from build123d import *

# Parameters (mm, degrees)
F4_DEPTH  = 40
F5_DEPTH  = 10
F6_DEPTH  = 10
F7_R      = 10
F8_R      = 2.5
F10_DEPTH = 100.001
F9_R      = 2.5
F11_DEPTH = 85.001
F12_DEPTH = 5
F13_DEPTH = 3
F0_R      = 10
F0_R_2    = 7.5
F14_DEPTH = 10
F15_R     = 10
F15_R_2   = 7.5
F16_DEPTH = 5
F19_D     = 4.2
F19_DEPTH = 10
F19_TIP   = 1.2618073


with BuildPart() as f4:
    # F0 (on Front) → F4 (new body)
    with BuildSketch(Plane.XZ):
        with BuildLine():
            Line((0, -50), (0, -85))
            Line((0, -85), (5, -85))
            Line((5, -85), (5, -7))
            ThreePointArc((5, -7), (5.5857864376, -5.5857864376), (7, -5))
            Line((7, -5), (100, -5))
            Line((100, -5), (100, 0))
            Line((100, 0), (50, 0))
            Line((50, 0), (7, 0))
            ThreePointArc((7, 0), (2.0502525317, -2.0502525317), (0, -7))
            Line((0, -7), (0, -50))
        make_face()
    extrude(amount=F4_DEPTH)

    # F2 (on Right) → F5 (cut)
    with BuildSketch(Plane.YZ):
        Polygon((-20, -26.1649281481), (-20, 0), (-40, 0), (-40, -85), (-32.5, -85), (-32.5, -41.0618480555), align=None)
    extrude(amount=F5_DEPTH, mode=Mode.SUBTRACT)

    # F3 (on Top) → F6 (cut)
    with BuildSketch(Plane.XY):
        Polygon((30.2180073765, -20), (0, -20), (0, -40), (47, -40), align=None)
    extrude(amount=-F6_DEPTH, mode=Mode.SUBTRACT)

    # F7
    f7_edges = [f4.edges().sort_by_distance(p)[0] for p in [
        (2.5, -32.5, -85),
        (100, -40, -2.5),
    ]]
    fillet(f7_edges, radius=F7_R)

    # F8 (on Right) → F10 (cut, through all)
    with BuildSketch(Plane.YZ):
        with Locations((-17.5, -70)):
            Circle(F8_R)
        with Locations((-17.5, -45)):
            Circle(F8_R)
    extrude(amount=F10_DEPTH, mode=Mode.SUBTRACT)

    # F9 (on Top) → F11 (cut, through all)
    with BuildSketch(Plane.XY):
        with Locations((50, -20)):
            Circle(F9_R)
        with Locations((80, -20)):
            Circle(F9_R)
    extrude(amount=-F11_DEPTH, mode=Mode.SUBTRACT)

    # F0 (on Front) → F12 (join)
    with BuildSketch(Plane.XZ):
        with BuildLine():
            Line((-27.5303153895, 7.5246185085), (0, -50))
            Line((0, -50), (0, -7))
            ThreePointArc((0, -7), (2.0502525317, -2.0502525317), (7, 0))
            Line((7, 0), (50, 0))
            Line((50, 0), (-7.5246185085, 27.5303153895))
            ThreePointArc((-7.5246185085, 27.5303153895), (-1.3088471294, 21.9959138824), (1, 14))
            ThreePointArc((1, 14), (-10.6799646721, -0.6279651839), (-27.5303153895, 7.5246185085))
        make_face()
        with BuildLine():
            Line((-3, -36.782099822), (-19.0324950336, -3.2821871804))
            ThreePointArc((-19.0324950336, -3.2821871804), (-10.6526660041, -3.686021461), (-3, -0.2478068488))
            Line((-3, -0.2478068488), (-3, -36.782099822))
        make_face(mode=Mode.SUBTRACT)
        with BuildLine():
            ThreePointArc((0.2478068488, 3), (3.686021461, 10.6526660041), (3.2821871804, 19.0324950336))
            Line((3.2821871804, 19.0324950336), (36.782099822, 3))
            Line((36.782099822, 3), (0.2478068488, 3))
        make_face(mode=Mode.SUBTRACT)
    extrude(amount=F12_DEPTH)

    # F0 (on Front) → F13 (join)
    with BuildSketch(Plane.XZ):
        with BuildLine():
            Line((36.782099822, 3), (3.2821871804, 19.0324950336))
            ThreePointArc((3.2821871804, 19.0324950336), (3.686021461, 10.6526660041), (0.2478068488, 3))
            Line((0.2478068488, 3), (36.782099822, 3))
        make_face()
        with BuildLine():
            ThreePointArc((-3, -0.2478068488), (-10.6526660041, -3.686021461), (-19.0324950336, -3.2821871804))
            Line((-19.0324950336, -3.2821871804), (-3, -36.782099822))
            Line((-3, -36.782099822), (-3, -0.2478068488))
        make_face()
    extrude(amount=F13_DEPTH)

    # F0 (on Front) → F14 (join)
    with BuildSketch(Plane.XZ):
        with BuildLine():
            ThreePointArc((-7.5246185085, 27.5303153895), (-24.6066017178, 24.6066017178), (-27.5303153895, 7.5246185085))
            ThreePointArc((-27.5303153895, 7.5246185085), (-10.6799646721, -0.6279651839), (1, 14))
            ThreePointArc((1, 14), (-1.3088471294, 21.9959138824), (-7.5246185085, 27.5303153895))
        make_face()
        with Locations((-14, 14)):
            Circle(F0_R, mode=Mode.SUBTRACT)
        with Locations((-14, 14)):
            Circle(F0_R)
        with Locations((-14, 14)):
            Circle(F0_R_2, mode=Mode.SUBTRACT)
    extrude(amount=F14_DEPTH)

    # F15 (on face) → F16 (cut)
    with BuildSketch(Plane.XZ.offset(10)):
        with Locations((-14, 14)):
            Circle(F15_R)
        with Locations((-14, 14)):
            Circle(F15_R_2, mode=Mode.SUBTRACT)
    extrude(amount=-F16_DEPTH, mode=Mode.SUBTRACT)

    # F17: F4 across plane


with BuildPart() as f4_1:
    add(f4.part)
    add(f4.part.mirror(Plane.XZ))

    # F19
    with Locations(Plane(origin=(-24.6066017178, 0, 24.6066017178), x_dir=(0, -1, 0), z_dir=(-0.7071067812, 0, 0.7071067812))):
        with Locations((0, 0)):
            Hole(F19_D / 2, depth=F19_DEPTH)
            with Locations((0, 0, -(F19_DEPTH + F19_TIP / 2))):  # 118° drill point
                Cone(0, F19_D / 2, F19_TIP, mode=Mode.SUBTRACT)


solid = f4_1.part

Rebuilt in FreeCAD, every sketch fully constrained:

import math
import FreeCAD as App
import Part
import Sketcher
from FreeCAD import Vector
Q = App.Units.Quantity


def edges_at(feature, points):
    """Names of the edges that pass closest to the given points."""
    edges = feature.Shape.Edges
    near = lambda p: min(range(len(edges)), key=lambda i: edges[i].distToShape(Part.Vertex(*p))[0])
    return sorted({f"Edge{near(p) + 1}" for p in points})


def add_polygon(sketch, points):
    """Adds a closed chain of lines whose ends are joined by coincident constraints."""
    first, n = sketch.GeometryCount, len(points)
    for a, b in zip(points, points[1:] + points[:1]):
        sketch.addGeometry(Part.LineSegment(App.Vector(*a, 0), App.Vector(*b, 0)), False)
    for i in range(n):
        sketch.addConstraint(Sketcher.Constraint("Coincident", first + i, 2, first + (i + 1) % n, 1))

doc = App.newDocument("Part")
params = doc.addObject("Spreadsheet::Sheet", "Params")
for row, (alias, value) in enumerate([
    ("sketch1_radius", "2 mm"),
    ("sketch1_radius2", "7 mm"),
    ("sketch1_width", "93 mm"),
    ("sketch1_height", "78 mm"),
    ("pad1_length", "40 mm"),
    ("sketch2_width", "20 mm"),
    ("sketch2_height", "85 mm"),
    ("sketch2_width2", "7.5 mm"),
    ("pocket1_length", "10 mm"),
    ("sketch3_width", "47 mm"),
    ("sketch3_height", "20 mm"),
    ("pocket2_length", "10 mm"),
    ("fillet_radius", "10 mm"),
    ("sketch4_diameter", "5 mm"),
    ("sketch5_diameter", "5 mm"),
    ("sketch6_radius", "7 mm"),
    ("sketch6_radius2", "15 mm"),
    ("sketch6_radius3", "18 mm"),
    ("sketch6_width", "43 mm"),
    ("pad2_length", "5 mm"),
    ("sketch7_radius", "18 mm"),
    ("pad3_length", "3 mm"),
    ("sketch8_diameter", "30 mm"),
    ("sketch8_diameter2", "15 mm"),
    ("pad4_length", "10 mm"),
    ("sketch9_diameter", "20 mm"),
    ("sketch9_diameter2", "15 mm"),
    ("pocket5_length", "5 mm"),
    ("sketch10_diameter", "4.2 mm"),
    ("hole_diameter", "4.2 mm"),
    ("hole_depth", "10 mm"),
], start=1):
    params.set(f"A{row}", alias)
    params.set(f"B{row}", "=" + value)
    params.setAlias(f"B{row}", alias)

body = doc.addObject("PartDesign::Body", "Body")

sketch1 = body.newObject("Sketcher::SketchObject", "Sketch")
sketch1.AttachmentSupport = (doc.getObject("XZ_Plane"), [""])
sketch1.MapMode = "FlatFace"
sketch1.addGeometry(Part.LineSegment(Vector(0, -85, 0), Vector(5, -85, 0)), False)
sketch1.addGeometry(Part.LineSegment(Vector(5, -85, 0), Vector(5, -7, 0)), False)
sketch1.addGeometry(Part.ArcOfCircle(Part.Circle(Vector(7, -7, 0), Vector(0, 0, 1), 2), math.radians(90), math.radians(180)), False)
sketch1.addGeometry(Part.LineSegment(Vector(7, -5, 0), Vector(100, -5, 0)), False)
sketch1.addGeometry(Part.LineSegment(Vector(100, -5, 0), Vector(100, 0, 0)), False)
sketch1.addGeometry(Part.LineSegment(Vector(100, 0, 0), Vector(7, 0, 0)), False)
sketch1.addGeometry(Part.ArcOfCircle(Part.Circle(Vector(7, -7, 0), Vector(0, 0, 1), 7), math.radians(90), math.radians(180)), False)
sketch1.addGeometry(Part.LineSegment(Vector(0, -7, 0), Vector(0, -85, 0)), False)
sketch1.addConstraint(Sketcher.Constraint("Coincident", 0, 2, 1, 1))
sketch1.addConstraint(Sketcher.Constraint("Tangent", 1, 2, 2, 2))
sketch1.addConstraint(Sketcher.Constraint("Tangent", 2, 1, 3, 1))
sketch1.addConstraint(Sketcher.Constraint("Coincident", 3, 2, 4, 1))
sketch1.addConstraint(Sketcher.Constraint("Coincident", 4, 2, 5, 1))
sketch1.addConstraint(Sketcher.Constraint("Tangent", 5, 2, 6, 1))
sketch1.addConstraint(Sketcher.Constraint("Tangent", 6, 2, 7, 1))
sketch1.addConstraint(Sketcher.Constraint("Coincident", 7, 2, 0, 1))
sketch1.addConstraint(Sketcher.Constraint("Horizontal", 0))
sketch1.addConstraint(Sketcher.Constraint("Vertical", 1))
sketch1.addConstraint(Sketcher.Constraint("Horizontal", 3))
sketch1.addConstraint(Sketcher.Constraint("Vertical", 4))
sketch1.addConstraint(Sketcher.Constraint("Horizontal", 5))
sketch1.addConstraint(Sketcher.Constraint("Vertical", 7))
sketch1.addConstraint(Sketcher.Constraint("Coincident", 6, 3, 2, 3))
sketch1.addConstraint(Sketcher.Constraint("PointOnObject", 4, 2, -1))
sketch1.addConstraint(Sketcher.Constraint("PointOnObject", 6, 2, -2))
sketch1.addConstraint(Sketcher.Constraint("Radius", 2, Q("2 mm")))
sketch1.addConstraint(Sketcher.Constraint("Radius", 6, Q("7 mm")))
sketch1.addConstraint(Sketcher.Constraint("DistanceX", 3, 1, 3, 2, Q("93 mm")))
sketch1.addConstraint(Sketcher.Constraint("DistanceY", 1, 1, 1, 2, Q("78 mm")))
sketch1.setExpression("Constraints[17]", "Params.sketch1_radius")
sketch1.setExpression("Constraints[18]", "Params.sketch1_radius2")
sketch1.setExpression("Constraints[19]", "Params.sketch1_width")
sketch1.setExpression("Constraints[20]", "Params.sketch1_height")
pad1 = body.newObject("PartDesign::Pad", "Pad")
pad1.Profile = sketch1
pad1.setExpression("Length", "Params.pad1_length")

sketch2 = body.newObject("Sketcher::SketchObject", "Sketch001")
sketch2.AttachmentSupport = (doc.getObject("YZ_Plane"), [""])
sketch2.MapMode = "FlatFace"
add_polygon(sketch2, [(-20, -26.164928), (-20, 0), (-40, 0), (-40, -85), (-32.5, -85), (-32.5, -41.061848)])
sketch2.addConstraint(Sketcher.Constraint("Vertical", 0))
sketch2.addConstraint(Sketcher.Constraint("Horizontal", 1))
sketch2.addConstraint(Sketcher.Constraint("Vertical", 2))
sketch2.addConstraint(Sketcher.Constraint("Horizontal", 3))
sketch2.addConstraint(Sketcher.Constraint("Vertical", 4))
sketch2.addConstraint(Sketcher.Constraint("PointOnObject", 0, 2, -1))
sketch2.addConstraint(Sketcher.Constraint("DistanceX", 1, 2, 1, 1, Q("20 mm")))
sketch2.addConstraint(Sketcher.Constraint("DistanceY", 2, 2, 2, 1, Q("85 mm")))
sketch2.addConstraint(Sketcher.Constraint("Angle", 5, Q("50 deg")))
sketch2.addConstraint(Sketcher.Constraint("DistanceX", 3, 1, 3, 2, Q("7.5 mm")))
sketch2.addConstraint(Sketcher.Constraint("DistanceX", 0, 2, -1, 1, Q("20 mm")))
sketch2.addConstraint(Sketcher.Constraint("DistanceY", 0, 1, 0, 2, Q("26.164928 mm")))
sketch2.setExpression("Constraints[12]", "Params.sketch2_width")
sketch2.setExpression("Constraints[13]", "Params.sketch2_height")
sketch2.setExpression("Constraints[15]", "Params.sketch2_width2")
pocket1 = body.newObject("PartDesign::Pocket", "Pocket")
pocket1.Profile = sketch2
pocket1.setExpression("Length", "Params.pocket1_length")
pocket1.Reversed = True

sketch3 = body.newObject("Sketcher::SketchObject", "Sketch002")
sketch3.AttachmentSupport = (doc.getObject("XY_Plane"), [""])
sketch3.MapMode = "FlatFace"
add_polygon(sketch3, [(30.218007, -20), (0, -20), (0, -40), (47, -40)])
sketch3.addConstraint(Sketcher.Constraint("Horizontal", 0))
sketch3.addConstraint(Sketcher.Constraint("Vertical", 1))
sketch3.addConstraint(Sketcher.Constraint("Horizontal", 2))
sketch3.addConstraint(Sketcher.Constraint("PointOnObject", 0, 2, -2))
sketch3.addConstraint(Sketcher.Constraint("DistanceX", 2, 1, 2, 2, Q("47 mm")))
sketch3.addConstraint(Sketcher.Constraint("DistanceY", 1, 2, 1, 1, Q("20 mm")))
sketch3.addConstraint(Sketcher.Constraint("Angle", 3, Q("130 deg")))
sketch3.addConstraint(Sketcher.Constraint("DistanceY", 0, 2, -1, 1, Q("20 mm")))
sketch3.setExpression("Constraints[8]", "Params.sketch3_width")
sketch3.setExpression("Constraints[9]", "Params.sketch3_height")
pocket2 = body.newObject("PartDesign::Pocket", "Pocket001")
pocket2.Profile = sketch3
pocket2.setExpression("Length", "Params.pocket2_length")
doc.recompute()

fillet = body.newObject("PartDesign::Fillet", "Fillet")
fillet.Base = (pocket2, edges_at(pocket2, [(2.5, -32.5, -85), (100, -40, -2.5)]))
fillet.setExpression("Radius", "Params.fillet_radius")

sketch4 = body.newObject("Sketcher::SketchObject", "Sketch003")
sketch4.AttachmentSupport = (doc.getObject("YZ_Plane"), [""])
sketch4.MapMode = "FlatFace"
sketch4.addGeometry(Part.Circle(Vector(-17.5, -70, 0), Vector(0, 0, 1), 2.5), False)
sketch4.addGeometry(Part.Circle(Vector(-17.5, -45, 0), Vector(0, 0, 1), 2.5), False)
sketch4.addConstraint(Sketcher.Constraint("Equal", 0, 1))
sketch4.addConstraint(Sketcher.Constraint("Vertical", 0, 3, 1, 3))
sketch4.addConstraint(Sketcher.Constraint("Diameter", 0, Q("5 mm")))
sketch4.addConstraint(Sketcher.Constraint("DistanceY", 0, 3, -1, 1, Q("70 mm")))
sketch4.addConstraint(Sketcher.Constraint("DistanceY", 1, 3, -1, 1, Q("45 mm")))
sketch4.addConstraint(Sketcher.Constraint("DistanceX", 0, 3, -1, 1, Q("17.5 mm")))
sketch4.setExpression("Constraints[2]", "Params.sketch4_diameter")
pocket3 = body.newObject("PartDesign::Pocket", "Pocket002")
pocket3.Profile = sketch4
pocket3.Type = "ThroughAll"
pocket3.Reversed = True

sketch5 = body.newObject("Sketcher::SketchObject", "Sketch004")
sketch5.AttachmentSupport = (doc.getObject("XY_Plane"), [""])
sketch5.MapMode = "FlatFace"
sketch5.addGeometry(Part.Circle(Vector(50, -20, 0), Vector(0, 0, 1), 2.5), False)
sketch5.addGeometry(Part.Circle(Vector(80, -20, 0), Vector(0, 0, 1), 2.5), False)
sketch5.addConstraint(Sketcher.Constraint("Equal", 0, 1))
sketch5.addConstraint(Sketcher.Constraint("Horizontal", 0, 3, 1, 3))
sketch5.addConstraint(Sketcher.Constraint("Diameter", 0, Q("5 mm")))
sketch5.addConstraint(Sketcher.Constraint("DistanceX", -1, 1, 0, 3, Q("50 mm")))
sketch5.addConstraint(Sketcher.Constraint("DistanceY", 0, 3, -1, 1, Q("20 mm")))
sketch5.addConstraint(Sketcher.Constraint("DistanceX", -1, 1, 1, 3, Q("80 mm")))
sketch5.setExpression("Constraints[2]", "Params.sketch5_diameter")
pocket4 = body.newObject("PartDesign::Pocket", "Pocket003")
pocket4.Profile = sketch5
pocket4.Type = "ThroughAll"

sketch6 = body.newObject("Sketcher::SketchObject", "Sketch005")
sketch6.AttachmentSupport = (doc.getObject("XZ_Plane"), [""])
sketch6.MapMode = "FlatFace"
sketch6.addGeometry(Part.LineSegment(Vector(-27.530315, 7.524619, 0), Vector(0, -50, 0)), False)
sketch6.addGeometry(Part.LineSegment(Vector(0, -50, 0), Vector(0, -7, 0)), False)
sketch6.addGeometry(Part.ArcOfCircle(Part.Circle(Vector(7, -7, 0), Vector(0, 0, 1), 7), math.radians(90), math.radians(180)), False)
sketch6.addGeometry(Part.LineSegment(Vector(7, 0, 0), Vector(50, 0, 0)), False)
sketch6.addGeometry(Part.LineSegment(Vector(50, 0, 0), Vector(-7.524619, 27.530315, 0)), False)
sketch6.addGeometry(Part.ArcOfCircle(Part.Circle(Vector(-14, 14, 0), Vector(0, 0, 1), 15), math.radians(0), math.radians(64.425007)), False)
sketch6.addGeometry(Part.ArcOfCircle(Part.Circle(Vector(-14, 14, 0), Vector(0, 0, 1), 15), math.radians(-154.425007), math.radians(0)), False)
sketch6.addGeometry(Part.LineSegment(Vector(-3, -0.247807, 0), Vector(-3, -36.7821, 0)), False)
sketch6.addGeometry(Part.LineSegment(Vector(-3, -36.7821, 0), Vector(-19.032495, -3.282187, 0)), False)
sketch6.addGeometry(Part.ArcOfCircle(Part.Circle(Vector(-14, 14, 0), Vector(0, 0, 1), 18), math.radians(-106.235322), math.radians(-52.330113)), False)
sketch6.addGeometry(Part.LineSegment(Vector(36.7821, 3, 0), Vector(0.247807, 3, 0)), False)
sketch6.addGeometry(Part.ArcOfCircle(Part.Circle(Vector(-14, 14, 0), Vector(0, 0, 1), 18), math.radians(-37.669887), math.radians(16.235322)), False)
sketch6.addGeometry(Part.LineSegment(Vector(3.282187, 19.032495, 0), Vector(36.7821, 3, 0)), False)
sketch6.addConstraint(Sketcher.Constraint("Coincident", 0, 2, 1, 1))
sketch6.addConstraint(Sketcher.Constraint("Tangent", 1, 2, 2, 2))
sketch6.addConstraint(Sketcher.Constraint("Tangent", 2, 1, 3, 1))
sketch6.addConstraint(Sketcher.Constraint("Coincident", 3, 2, 4, 1))
sketch6.addConstraint(Sketcher.Constraint("Tangent", 4, 2, 5, 2))
sketch6.addConstraint(Sketcher.Constraint("Tangent", 5, 1, 6, 2))
sketch6.addConstraint(Sketcher.Constraint("Tangent", 6, 1, 0, 1))
sketch6.addConstraint(Sketcher.Constraint("Coincident", 7, 2, 8, 1))
sketch6.addConstraint(Sketcher.Constraint("Coincident", 8, 2, 9, 1))
sketch6.addConstraint(Sketcher.Constraint("Coincident", 9, 2, 7, 1))
sketch6.addConstraint(Sketcher.Constraint("Coincident", 10, 2, 11, 1))
sketch6.addConstraint(Sketcher.Constraint("Coincident", 11, 2, 12, 1))
sketch6.addConstraint(Sketcher.Constraint("Coincident", 12, 2, 10, 1))
sketch6.addConstraint(Sketcher.Constraint("Vertical", 1))
sketch6.addConstraint(Sketcher.Constraint("Horizontal", 3))
sketch6.addConstraint(Sketcher.Constraint("Vertical", 7))
sketch6.addConstraint(Sketcher.Constraint("Horizontal", 10))
sketch6.addConstraint(Sketcher.Constraint("Coincident", 9, 3, 5, 3))
sketch6.addConstraint(Sketcher.Constraint("Coincident", 11, 3, 5, 3))
sketch6.addConstraint(Sketcher.Constraint("Equal", 5, 6))
sketch6.addConstraint(Sketcher.Constraint("Equal", 9, 11))
sketch6.addConstraint(Sketcher.Constraint("PointOnObject", 0, 2, -2))
sketch6.addConstraint(Sketcher.Constraint("PointOnObject", 2, 1, -1))
sketch6.addConstraint(Sketcher.Constraint("Parallel", 0, 8))
sketch6.addConstraint(Sketcher.Constraint("Parallel", 4, 12))
sketch6.addConstraint(Sketcher.Constraint("Horizontal", 11, 3, 5, 1))
sketch6.addConstraint(Sketcher.Constraint("Equal", 3, 1))
sketch6.addConstraint(Sketcher.Constraint("Equal", 10, 7))
sketch6.addConstraint(Sketcher.Constraint("Equal", 0, 4))
sketch6.addConstraint(Sketcher.Constraint("Equal", 8, 12))
sketch6.addConstraint(Sketcher.Constraint("Radius", 2, Q("7 mm")))
sketch6.addConstraint(Sketcher.Constraint("Radius", 5, Q("15 mm")))
sketch6.addConstraint(Sketcher.Constraint("Radius", 9, Q("18 mm")))
sketch6.addConstraint(Sketcher.Constraint("DistanceX", 3, 1, 3, 2, Q("43 mm")))
sketch6.addConstraint(Sketcher.Constraint("DistanceX", 5, 3, -1, 1, Q("14 mm")))
sketch6.addConstraint(Sketcher.Constraint("DistanceX", 7, 2, -1, 1, Q("3 mm")))
sketch6.addConstraint(Sketcher.Constraint("DistanceY", 7, 2, -1, 1, Q("36.7821 mm")))
sketch6.setExpression("Constraints[30]", "Params.sketch6_radius")
sketch6.setExpression("Constraints[31]", "Params.sketch6_radius2")
sketch6.setExpression("Constraints[32]", "Params.sketch6_radius3")
sketch6.setExpression("Constraints[33]", "Params.sketch6_width")
pad2 = body.newObject("PartDesign::Pad", "Pad001")
pad2.Profile = sketch6
pad2.setExpression("Length", "Params.pad2_length")

sketch7 = body.newObject("Sketcher::SketchObject", "Sketch006")
sketch7.AttachmentSupport = (doc.getObject("XZ_Plane"), [""])
sketch7.MapMode = "FlatFace"
sketch7.addGeometry(Part.LineSegment(Vector(36.7821, 3, 0), Vector(3.282187, 19.032495, 0)), False)
sketch7.addGeometry(Part.ArcOfCircle(Part.Circle(Vector(-14, 14, 0), Vector(0, 0, 1), 18), math.radians(-37.669887), math.radians(16.235322)), False)
sketch7.addGeometry(Part.LineSegment(Vector(0.247807, 3, 0), Vector(36.7821, 3, 0)), False)
sketch7.addGeometry(Part.ArcOfCircle(Part.Circle(Vector(-14, 14, 0), Vector(0, 0, 1), 18), math.radians(-106.235322), math.radians(-52.330113)), False)
sketch7.addGeometry(Part.LineSegment(Vector(-19.032495, -3.282187, 0), Vector(-3, -36.7821, 0)), False)
sketch7.addGeometry(Part.LineSegment(Vector(-3, -36.7821, 0), Vector(-3, -0.247807, 0)), False)
sketch7.addConstraint(Sketcher.Constraint("Coincident", 0, 2, 1, 2))
sketch7.addConstraint(Sketcher.Constraint("Coincident", 1, 1, 2, 1))
sketch7.addConstraint(Sketcher.Constraint("Coincident", 2, 2, 0, 1))
sketch7.addConstraint(Sketcher.Constraint("Coincident", 3, 1, 4, 1))
sketch7.addConstraint(Sketcher.Constraint("Coincident", 4, 2, 5, 1))
sketch7.addConstraint(Sketcher.Constraint("Coincident", 5, 2, 3, 2))
sketch7.addConstraint(Sketcher.Constraint("Horizontal", 2))
sketch7.addConstraint(Sketcher.Constraint("Vertical", 5))
sketch7.addConstraint(Sketcher.Constraint("Coincident", 3, 3, 1, 3))
sketch7.addConstraint(Sketcher.Constraint("Equal", 1, 3))
sketch7.addConstraint(Sketcher.Constraint("Equal", 2, 5))
sketch7.addConstraint(Sketcher.Constraint("Equal", 0, 4))
sketch7.addConstraint(Sketcher.Constraint("Radius", 1, Q("18 mm")))
sketch7.addConstraint(Sketcher.Constraint("DistanceX", 1, 3, -1, 1, Q("14 mm")))
sketch7.addConstraint(Sketcher.Constraint("DistanceY", -1, 1, 1, 3, Q("14 mm")))
sketch7.addConstraint(Sketcher.Constraint("DistanceY", -1, 1, 1, 1, Q("3 mm")))
sketch7.addConstraint(Sketcher.Constraint("DistanceX", 4, 2, -1, 1, Q("3 mm")))
sketch7.addConstraint(Sketcher.Constraint("DistanceX", -1, 1, 2, 2, Q("36.7821 mm")))
sketch7.addConstraint(Sketcher.Constraint("DistanceX", 3, 1, 1, 1, Q("19.280302 mm")))
sketch7.setExpression("Constraints[12]", "Params.sketch7_radius")
pad3 = body.newObject("PartDesign::Pad", "Pad002")
pad3.Profile = sketch7
pad3.setExpression("Length", "Params.pad3_length")

sketch8 = body.newObject("Sketcher::SketchObject", "Sketch007")
sketch8.AttachmentSupport = (doc.getObject("XZ_Plane"), [""])
sketch8.MapMode = "FlatFace"
sketch8.addGeometry(Part.Circle(Vector(-14, 14, 0), Vector(0, 0, 1), 15), False)
sketch8.addGeometry(Part.Circle(Vector(-14, 14, 0), Vector(0, 0, 1), 7.5), False)
sketch8.addConstraint(Sketcher.Constraint("Coincident", 1, 3, 0, 3))
sketch8.addConstraint(Sketcher.Constraint("Diameter", 0, Q("30 mm")))
sketch8.addConstraint(Sketcher.Constraint("Diameter", 1, Q("15 mm")))
sketch8.addConstraint(Sketcher.Constraint("DistanceX", 0, 3, -1, 1, Q("14 mm")))
sketch8.addConstraint(Sketcher.Constraint("DistanceY", -1, 1, 0, 3, Q("14 mm")))
sketch8.setExpression("Constraints[1]", "Params.sketch8_diameter")
sketch8.setExpression("Constraints[2]", "Params.sketch8_diameter2")
pad4 = body.newObject("PartDesign::Pad", "Pad003")
pad4.Profile = sketch8
pad4.setExpression("Length", "Params.pad4_length")

sketch9 = body.newObject("Sketcher::SketchObject", "Sketch008")
sketch9.AttachmentSupport = (doc.getObject("XZ_Plane"), [""])
sketch9.MapMode = "FlatFace"
sketch9.AttachmentOffset = App.Placement(Vector(0, 0, 10), App.Rotation())
sketch9.addGeometry(Part.Circle(Vector(-14, 14, 0), Vector(0, 0, 1), 10), False)
sketch9.addGeometry(Part.Circle(Vector(-14, 14, 0), Vector(0, 0, 1), 7.5), False)
sketch9.addConstraint(Sketcher.Constraint("Coincident", 1, 3, 0, 3))
sketch9.addConstraint(Sketcher.Constraint("Diameter", 0, Q("20 mm")))
sketch9.addConstraint(Sketcher.Constraint("Diameter", 1, Q("15 mm")))
sketch9.addConstraint(Sketcher.Constraint("DistanceX", 0, 3, -1, 1, Q("14 mm")))
sketch9.addConstraint(Sketcher.Constraint("DistanceY", -1, 1, 0, 3, Q("14 mm")))
sketch9.setExpression("Constraints[1]", "Params.sketch9_diameter")
sketch9.setExpression("Constraints[2]", "Params.sketch9_diameter2")
pocket5 = body.newObject("PartDesign::Pocket", "Pocket004")
pocket5.Profile = sketch9
pocket5.setExpression("Length", "Params.pocket5_length")
body2 = doc.addObject("PartDesign::Body", "Body001")
doc.recompute()

body2.BaseFeature = body
doc.recompute()

mirroring = doc.addObject("Part::Mirroring", "Mirroring")
mirroring.Source = body
mirroring.Base = Vector(0, 0, 0)
mirroring.Normal = Vector(0, -1, 0)
body3 = doc.addObject("PartDesign::Body", "Body002")
body3.BaseFeature = mirroring
boolean = body2.newObject("PartDesign::Boolean", "Boolean")
boolean.Type = "Fuse"
boolean.addObjects([body3])
doc.recompute()

sketch10 = body2.newObject("Sketcher::SketchObject", "Sketch009")
sketch10.Placement = App.Placement(Vector(-24.606602, 0, 24.606602), App.Rotation(Vector(0, -1, 0), Vector(0.707106781, 0, 0.707106781), Vector(-0.707106781, 0, 0.707106781), "ZXY"))
sketch10.addGeometry(Part.Circle(Vector(0, 0, 0), Vector(0, 0, 1), 2.1), False)
sketch10.addConstraint(Sketcher.Constraint("Coincident", 0, 3, -1, 1))
sketch10.addConstraint(Sketcher.Constraint("Diameter", 0, Q("4.2 mm")))
sketch10.setExpression("Constraints[1]", "Params.sketch10_diameter")
doc.recompute()
hole = body2.newObject("PartDesign::Hole", "Hole")
hole.Profile = sketch10
hole.ThreadType = "None"
hole.setExpression("Diameter", "Params.hole_diameter")
hole.DepthType = "Dimension"
hole.setExpression("Depth", "Params.hole_depth")
hole.DrillPoint = "Angled"
hole.DrillPointAngle = 118
mirroring.Visibility = False

doc.recompute()
